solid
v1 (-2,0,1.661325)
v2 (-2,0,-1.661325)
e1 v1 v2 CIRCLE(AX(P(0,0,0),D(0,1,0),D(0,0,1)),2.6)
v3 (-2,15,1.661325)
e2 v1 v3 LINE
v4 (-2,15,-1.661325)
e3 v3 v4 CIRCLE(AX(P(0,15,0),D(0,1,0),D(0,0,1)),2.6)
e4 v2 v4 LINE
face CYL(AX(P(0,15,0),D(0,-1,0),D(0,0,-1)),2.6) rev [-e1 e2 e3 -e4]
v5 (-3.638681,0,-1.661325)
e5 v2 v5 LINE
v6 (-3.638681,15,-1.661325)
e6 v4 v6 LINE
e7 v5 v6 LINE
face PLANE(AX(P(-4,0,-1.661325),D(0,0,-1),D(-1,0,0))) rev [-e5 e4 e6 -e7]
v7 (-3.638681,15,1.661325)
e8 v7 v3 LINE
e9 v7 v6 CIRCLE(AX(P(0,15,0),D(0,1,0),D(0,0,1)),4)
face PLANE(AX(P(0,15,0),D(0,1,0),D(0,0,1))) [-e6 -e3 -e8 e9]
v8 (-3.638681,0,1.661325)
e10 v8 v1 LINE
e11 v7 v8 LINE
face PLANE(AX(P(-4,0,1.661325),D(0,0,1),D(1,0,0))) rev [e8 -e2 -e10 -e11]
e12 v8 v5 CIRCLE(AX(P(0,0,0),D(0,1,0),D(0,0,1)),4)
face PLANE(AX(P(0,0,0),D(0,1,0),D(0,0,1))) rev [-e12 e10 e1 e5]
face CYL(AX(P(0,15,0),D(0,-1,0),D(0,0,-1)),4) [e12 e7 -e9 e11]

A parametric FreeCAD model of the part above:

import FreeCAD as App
import Part
import Sketcher
Q = App.Units.Quantity


def add_polygon(sketch, points):
    """Adds a closed chain of lines whose ends are joined by coincident constraints."""
    first, n = sketch.GeometryCount, len(points)
    for a, b in zip(points, points[1:] + points[:1]):
        sketch.addGeometry(Part.LineSegment(App.Vector(*a, 0), App.Vector(*b, 0)), False)
    for i in range(n):
        sketch.addConstraint(Sketcher.Constraint("Coincident", first + i, 2, first + (i + 1) % n, 1))

doc = App.newDocument("Part")
body = doc.addObject("PartDesign::Body", "Body")

sketch1 = body.newObject("Sketcher::SketchObject", "Sketch")
sketch1.AttachmentSupport = (doc.getObject("XZ_Plane"), [""])
sketch1.MapMode = "FlatFace"
sketch1.addGeometry([
    Part.Circle(App.Vector(0, 0, 0), App.Vector(0, 0, 1), 4),
    Part.Circle(App.Vector(0, 0, 0), App.Vector(0, 0, 1), 2.6),
], False)
sketch1.addConstraint([
    Sketcher.Constraint("Coincident", 0, 3, -1, 1),
    Sketcher.Constraint("Coincident", 1, 3, -1, 1),
    Sketcher.Constraint("Diameter", 0, Q("8 mm")),
    Sketcher.Constraint("Diameter", 1, Q("5.2 mm")),
])
pad1 = body.newObject("PartDesign::Pad", "Pad")
pad1.Profile = sketch1
pad1.Length = 15
pad1.Reversed = True

sketch2 = body.newObject("Sketcher::SketchObject", "Sketch001")
sketch2.AttachmentSupport = (doc.getObject("XZ_Plane"), [""])
sketch2.MapMode = "FlatFace"
sketch2.AttachmentOffset = App.Placement(App.Vector(0, 0, -15), App.Rotation())
add_polygon(sketch2, [(-4, -1.7), (-4, 1.7), (-2, 1.7), (-2, -1.7)])
sketch2.addConstraint([
    Sketcher.Constraint("Vertical", 0),
    Sketcher.Constraint("Horizontal", 1),
    Sketcher.Constraint("Vertical", 2),
    Sketcher.Constraint("Horizontal", 3),
    Sketcher.Constraint("DistanceX", 1, 1, 1, 2, Q("2 mm")),
    Sketcher.Constraint("DistanceX", 0, 2, -1, 1, Q("4 mm")),
    Sketcher.Constraint("DistanceY", 0, 1, 0, 2, Q("3.32265 mm")),
    Sketcher.Constraint("DistanceY", -1, 1, 0, 2, Q("1.661325 mm")),
])
pocket1 = body.newObject("PartDesign::Pocket", "Pocket")
pocket1.Profile = sketch2
pocket1.Length = 15
pocket1.Reversed = True

doc.recompute()
